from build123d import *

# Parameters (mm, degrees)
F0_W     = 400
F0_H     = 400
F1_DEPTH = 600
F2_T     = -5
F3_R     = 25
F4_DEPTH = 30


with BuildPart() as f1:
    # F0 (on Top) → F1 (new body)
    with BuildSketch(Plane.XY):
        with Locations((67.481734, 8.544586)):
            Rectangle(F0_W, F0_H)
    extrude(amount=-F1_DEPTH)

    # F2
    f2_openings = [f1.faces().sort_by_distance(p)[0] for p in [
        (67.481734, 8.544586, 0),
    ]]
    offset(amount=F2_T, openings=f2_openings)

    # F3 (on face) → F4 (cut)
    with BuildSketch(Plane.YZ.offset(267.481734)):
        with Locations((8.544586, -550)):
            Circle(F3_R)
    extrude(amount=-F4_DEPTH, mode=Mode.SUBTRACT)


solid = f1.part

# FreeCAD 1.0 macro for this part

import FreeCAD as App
import Part
import Sketcher
Q = App.Units.Quantity


def faces_at(feature, points):
    """Names of the faces that lie closest to the given points."""
    faces = feature.Shape.Faces
    near = lambda p: min(range(len(faces)), key=lambda i: faces[i].distToShape(Part.Vertex(*p))[0])
    return sorted({f"Face{near(p) + 1}" for p in points})


def add_polygon(sketch, points):
    """Adds a closed chain of lines whose ends are joined by coincident constraints."""
    first, n = sketch.GeometryCount, len(points)
    for a, b in zip(points, points[1:] + points[:1]):
        sketch.addGeometry(Part.LineSegment(App.Vector(*a, 0), App.Vector(*b, 0)), False)
    for i in range(n):
        sketch.addConstraint(Sketcher.Constraint("Coincident", first + i, 2, first + (i + 1) % n, 1))

doc = App.newDocument("Part")
body = doc.addObject("PartDesign::Body", "Body")

# Sketch on XY plane
sketch1 = doc.addObject("Sketcher::SketchObject", "Sketch")
body.addObject(sketch1)
sketch1.AttachmentSupport = (doc.XY_Plane, [""])
sketch1.MapMode = "FlatFace"
add_polygon(sketch1, [(-132.518266, 208.544586), (-132.518266, -191.455414), (267.481734, -191.455414), (267.481734, 208.544586)])  # lines 0-3
sketch1.addConstraint(Sketcher.Constraint("Vertical", 0))
sketch1.addConstraint(Sketcher.Constraint("Horizontal", 1))
sketch1.addConstraint(Sketcher.Constraint("Vertical", 2))
sketch1.addConstraint(Sketcher.Constraint("Horizontal", 3))
sketch1.addConstraint(Sketcher.Constraint("Equal", 3, 0))
sketch1.addConstraint(Sketcher.Constraint("DistanceX", 1, 1, 1, 2, Q("400 mm")))
sketch1.addConstraint(Sketcher.Constraint("DistanceX", 0, 2, -1, 1, Q("132.518266 mm")))
sketch1.addConstraint(Sketcher.Constraint("DistanceY", 0, 2, -1, 1, Q("191.455414 mm")))
pad1 = doc.addObject("PartDesign::Pad", "Pad")
body.addObject(pad1)
pad1.Profile = sketch1
pad1.Length = 600
pad1.Reversed = True
doc.recompute()

thickness = doc.addObject("PartDesign::Thickness", "Thickness")
body.addObject(thickness)
thickness.Base = (pad1, faces_at(pad1, [(67.482, 8.545, 0)]))
thickness.Value = 5
thickness.Reversed = True
thickness.Join = "Arc"

# Sketch on YZ plane
sketch2 = doc.addObject("Sketcher::SketchObject", "Sketch001")
body.addObject(sketch2)
sketch2.AttachmentSupport = (doc.YZ_Plane, [""])
sketch2.MapMode = "FlatFace"
sketch2.AttachmentOffset = App.Placement(App.Vector(0, 0, 267.481734), App.Rotation())
sketch2.addGeometry(Part.Circle(App.Vector(8.544586, -550, 0), App.Vector(0, 0, 1), 25), False)
sketch2.addConstraint(Sketcher.Constraint("Diameter", 0, Q("50 mm")))
sketch2.addConstraint(Sketcher.Constraint("DistanceY", 0, 3, -1, 1, Q("550 mm")))
sketch2.addConstraint(Sketcher.Constraint("DistanceX", -1, 1, 0, 3, Q("8.544586 mm")))
pocket1 = doc.addObject("PartDesign::Pocket", "Pocket")
body.addObject(pocket1)
pocket1.Profile = sketch2
pocket1.Length = 30

doc.recompute()
